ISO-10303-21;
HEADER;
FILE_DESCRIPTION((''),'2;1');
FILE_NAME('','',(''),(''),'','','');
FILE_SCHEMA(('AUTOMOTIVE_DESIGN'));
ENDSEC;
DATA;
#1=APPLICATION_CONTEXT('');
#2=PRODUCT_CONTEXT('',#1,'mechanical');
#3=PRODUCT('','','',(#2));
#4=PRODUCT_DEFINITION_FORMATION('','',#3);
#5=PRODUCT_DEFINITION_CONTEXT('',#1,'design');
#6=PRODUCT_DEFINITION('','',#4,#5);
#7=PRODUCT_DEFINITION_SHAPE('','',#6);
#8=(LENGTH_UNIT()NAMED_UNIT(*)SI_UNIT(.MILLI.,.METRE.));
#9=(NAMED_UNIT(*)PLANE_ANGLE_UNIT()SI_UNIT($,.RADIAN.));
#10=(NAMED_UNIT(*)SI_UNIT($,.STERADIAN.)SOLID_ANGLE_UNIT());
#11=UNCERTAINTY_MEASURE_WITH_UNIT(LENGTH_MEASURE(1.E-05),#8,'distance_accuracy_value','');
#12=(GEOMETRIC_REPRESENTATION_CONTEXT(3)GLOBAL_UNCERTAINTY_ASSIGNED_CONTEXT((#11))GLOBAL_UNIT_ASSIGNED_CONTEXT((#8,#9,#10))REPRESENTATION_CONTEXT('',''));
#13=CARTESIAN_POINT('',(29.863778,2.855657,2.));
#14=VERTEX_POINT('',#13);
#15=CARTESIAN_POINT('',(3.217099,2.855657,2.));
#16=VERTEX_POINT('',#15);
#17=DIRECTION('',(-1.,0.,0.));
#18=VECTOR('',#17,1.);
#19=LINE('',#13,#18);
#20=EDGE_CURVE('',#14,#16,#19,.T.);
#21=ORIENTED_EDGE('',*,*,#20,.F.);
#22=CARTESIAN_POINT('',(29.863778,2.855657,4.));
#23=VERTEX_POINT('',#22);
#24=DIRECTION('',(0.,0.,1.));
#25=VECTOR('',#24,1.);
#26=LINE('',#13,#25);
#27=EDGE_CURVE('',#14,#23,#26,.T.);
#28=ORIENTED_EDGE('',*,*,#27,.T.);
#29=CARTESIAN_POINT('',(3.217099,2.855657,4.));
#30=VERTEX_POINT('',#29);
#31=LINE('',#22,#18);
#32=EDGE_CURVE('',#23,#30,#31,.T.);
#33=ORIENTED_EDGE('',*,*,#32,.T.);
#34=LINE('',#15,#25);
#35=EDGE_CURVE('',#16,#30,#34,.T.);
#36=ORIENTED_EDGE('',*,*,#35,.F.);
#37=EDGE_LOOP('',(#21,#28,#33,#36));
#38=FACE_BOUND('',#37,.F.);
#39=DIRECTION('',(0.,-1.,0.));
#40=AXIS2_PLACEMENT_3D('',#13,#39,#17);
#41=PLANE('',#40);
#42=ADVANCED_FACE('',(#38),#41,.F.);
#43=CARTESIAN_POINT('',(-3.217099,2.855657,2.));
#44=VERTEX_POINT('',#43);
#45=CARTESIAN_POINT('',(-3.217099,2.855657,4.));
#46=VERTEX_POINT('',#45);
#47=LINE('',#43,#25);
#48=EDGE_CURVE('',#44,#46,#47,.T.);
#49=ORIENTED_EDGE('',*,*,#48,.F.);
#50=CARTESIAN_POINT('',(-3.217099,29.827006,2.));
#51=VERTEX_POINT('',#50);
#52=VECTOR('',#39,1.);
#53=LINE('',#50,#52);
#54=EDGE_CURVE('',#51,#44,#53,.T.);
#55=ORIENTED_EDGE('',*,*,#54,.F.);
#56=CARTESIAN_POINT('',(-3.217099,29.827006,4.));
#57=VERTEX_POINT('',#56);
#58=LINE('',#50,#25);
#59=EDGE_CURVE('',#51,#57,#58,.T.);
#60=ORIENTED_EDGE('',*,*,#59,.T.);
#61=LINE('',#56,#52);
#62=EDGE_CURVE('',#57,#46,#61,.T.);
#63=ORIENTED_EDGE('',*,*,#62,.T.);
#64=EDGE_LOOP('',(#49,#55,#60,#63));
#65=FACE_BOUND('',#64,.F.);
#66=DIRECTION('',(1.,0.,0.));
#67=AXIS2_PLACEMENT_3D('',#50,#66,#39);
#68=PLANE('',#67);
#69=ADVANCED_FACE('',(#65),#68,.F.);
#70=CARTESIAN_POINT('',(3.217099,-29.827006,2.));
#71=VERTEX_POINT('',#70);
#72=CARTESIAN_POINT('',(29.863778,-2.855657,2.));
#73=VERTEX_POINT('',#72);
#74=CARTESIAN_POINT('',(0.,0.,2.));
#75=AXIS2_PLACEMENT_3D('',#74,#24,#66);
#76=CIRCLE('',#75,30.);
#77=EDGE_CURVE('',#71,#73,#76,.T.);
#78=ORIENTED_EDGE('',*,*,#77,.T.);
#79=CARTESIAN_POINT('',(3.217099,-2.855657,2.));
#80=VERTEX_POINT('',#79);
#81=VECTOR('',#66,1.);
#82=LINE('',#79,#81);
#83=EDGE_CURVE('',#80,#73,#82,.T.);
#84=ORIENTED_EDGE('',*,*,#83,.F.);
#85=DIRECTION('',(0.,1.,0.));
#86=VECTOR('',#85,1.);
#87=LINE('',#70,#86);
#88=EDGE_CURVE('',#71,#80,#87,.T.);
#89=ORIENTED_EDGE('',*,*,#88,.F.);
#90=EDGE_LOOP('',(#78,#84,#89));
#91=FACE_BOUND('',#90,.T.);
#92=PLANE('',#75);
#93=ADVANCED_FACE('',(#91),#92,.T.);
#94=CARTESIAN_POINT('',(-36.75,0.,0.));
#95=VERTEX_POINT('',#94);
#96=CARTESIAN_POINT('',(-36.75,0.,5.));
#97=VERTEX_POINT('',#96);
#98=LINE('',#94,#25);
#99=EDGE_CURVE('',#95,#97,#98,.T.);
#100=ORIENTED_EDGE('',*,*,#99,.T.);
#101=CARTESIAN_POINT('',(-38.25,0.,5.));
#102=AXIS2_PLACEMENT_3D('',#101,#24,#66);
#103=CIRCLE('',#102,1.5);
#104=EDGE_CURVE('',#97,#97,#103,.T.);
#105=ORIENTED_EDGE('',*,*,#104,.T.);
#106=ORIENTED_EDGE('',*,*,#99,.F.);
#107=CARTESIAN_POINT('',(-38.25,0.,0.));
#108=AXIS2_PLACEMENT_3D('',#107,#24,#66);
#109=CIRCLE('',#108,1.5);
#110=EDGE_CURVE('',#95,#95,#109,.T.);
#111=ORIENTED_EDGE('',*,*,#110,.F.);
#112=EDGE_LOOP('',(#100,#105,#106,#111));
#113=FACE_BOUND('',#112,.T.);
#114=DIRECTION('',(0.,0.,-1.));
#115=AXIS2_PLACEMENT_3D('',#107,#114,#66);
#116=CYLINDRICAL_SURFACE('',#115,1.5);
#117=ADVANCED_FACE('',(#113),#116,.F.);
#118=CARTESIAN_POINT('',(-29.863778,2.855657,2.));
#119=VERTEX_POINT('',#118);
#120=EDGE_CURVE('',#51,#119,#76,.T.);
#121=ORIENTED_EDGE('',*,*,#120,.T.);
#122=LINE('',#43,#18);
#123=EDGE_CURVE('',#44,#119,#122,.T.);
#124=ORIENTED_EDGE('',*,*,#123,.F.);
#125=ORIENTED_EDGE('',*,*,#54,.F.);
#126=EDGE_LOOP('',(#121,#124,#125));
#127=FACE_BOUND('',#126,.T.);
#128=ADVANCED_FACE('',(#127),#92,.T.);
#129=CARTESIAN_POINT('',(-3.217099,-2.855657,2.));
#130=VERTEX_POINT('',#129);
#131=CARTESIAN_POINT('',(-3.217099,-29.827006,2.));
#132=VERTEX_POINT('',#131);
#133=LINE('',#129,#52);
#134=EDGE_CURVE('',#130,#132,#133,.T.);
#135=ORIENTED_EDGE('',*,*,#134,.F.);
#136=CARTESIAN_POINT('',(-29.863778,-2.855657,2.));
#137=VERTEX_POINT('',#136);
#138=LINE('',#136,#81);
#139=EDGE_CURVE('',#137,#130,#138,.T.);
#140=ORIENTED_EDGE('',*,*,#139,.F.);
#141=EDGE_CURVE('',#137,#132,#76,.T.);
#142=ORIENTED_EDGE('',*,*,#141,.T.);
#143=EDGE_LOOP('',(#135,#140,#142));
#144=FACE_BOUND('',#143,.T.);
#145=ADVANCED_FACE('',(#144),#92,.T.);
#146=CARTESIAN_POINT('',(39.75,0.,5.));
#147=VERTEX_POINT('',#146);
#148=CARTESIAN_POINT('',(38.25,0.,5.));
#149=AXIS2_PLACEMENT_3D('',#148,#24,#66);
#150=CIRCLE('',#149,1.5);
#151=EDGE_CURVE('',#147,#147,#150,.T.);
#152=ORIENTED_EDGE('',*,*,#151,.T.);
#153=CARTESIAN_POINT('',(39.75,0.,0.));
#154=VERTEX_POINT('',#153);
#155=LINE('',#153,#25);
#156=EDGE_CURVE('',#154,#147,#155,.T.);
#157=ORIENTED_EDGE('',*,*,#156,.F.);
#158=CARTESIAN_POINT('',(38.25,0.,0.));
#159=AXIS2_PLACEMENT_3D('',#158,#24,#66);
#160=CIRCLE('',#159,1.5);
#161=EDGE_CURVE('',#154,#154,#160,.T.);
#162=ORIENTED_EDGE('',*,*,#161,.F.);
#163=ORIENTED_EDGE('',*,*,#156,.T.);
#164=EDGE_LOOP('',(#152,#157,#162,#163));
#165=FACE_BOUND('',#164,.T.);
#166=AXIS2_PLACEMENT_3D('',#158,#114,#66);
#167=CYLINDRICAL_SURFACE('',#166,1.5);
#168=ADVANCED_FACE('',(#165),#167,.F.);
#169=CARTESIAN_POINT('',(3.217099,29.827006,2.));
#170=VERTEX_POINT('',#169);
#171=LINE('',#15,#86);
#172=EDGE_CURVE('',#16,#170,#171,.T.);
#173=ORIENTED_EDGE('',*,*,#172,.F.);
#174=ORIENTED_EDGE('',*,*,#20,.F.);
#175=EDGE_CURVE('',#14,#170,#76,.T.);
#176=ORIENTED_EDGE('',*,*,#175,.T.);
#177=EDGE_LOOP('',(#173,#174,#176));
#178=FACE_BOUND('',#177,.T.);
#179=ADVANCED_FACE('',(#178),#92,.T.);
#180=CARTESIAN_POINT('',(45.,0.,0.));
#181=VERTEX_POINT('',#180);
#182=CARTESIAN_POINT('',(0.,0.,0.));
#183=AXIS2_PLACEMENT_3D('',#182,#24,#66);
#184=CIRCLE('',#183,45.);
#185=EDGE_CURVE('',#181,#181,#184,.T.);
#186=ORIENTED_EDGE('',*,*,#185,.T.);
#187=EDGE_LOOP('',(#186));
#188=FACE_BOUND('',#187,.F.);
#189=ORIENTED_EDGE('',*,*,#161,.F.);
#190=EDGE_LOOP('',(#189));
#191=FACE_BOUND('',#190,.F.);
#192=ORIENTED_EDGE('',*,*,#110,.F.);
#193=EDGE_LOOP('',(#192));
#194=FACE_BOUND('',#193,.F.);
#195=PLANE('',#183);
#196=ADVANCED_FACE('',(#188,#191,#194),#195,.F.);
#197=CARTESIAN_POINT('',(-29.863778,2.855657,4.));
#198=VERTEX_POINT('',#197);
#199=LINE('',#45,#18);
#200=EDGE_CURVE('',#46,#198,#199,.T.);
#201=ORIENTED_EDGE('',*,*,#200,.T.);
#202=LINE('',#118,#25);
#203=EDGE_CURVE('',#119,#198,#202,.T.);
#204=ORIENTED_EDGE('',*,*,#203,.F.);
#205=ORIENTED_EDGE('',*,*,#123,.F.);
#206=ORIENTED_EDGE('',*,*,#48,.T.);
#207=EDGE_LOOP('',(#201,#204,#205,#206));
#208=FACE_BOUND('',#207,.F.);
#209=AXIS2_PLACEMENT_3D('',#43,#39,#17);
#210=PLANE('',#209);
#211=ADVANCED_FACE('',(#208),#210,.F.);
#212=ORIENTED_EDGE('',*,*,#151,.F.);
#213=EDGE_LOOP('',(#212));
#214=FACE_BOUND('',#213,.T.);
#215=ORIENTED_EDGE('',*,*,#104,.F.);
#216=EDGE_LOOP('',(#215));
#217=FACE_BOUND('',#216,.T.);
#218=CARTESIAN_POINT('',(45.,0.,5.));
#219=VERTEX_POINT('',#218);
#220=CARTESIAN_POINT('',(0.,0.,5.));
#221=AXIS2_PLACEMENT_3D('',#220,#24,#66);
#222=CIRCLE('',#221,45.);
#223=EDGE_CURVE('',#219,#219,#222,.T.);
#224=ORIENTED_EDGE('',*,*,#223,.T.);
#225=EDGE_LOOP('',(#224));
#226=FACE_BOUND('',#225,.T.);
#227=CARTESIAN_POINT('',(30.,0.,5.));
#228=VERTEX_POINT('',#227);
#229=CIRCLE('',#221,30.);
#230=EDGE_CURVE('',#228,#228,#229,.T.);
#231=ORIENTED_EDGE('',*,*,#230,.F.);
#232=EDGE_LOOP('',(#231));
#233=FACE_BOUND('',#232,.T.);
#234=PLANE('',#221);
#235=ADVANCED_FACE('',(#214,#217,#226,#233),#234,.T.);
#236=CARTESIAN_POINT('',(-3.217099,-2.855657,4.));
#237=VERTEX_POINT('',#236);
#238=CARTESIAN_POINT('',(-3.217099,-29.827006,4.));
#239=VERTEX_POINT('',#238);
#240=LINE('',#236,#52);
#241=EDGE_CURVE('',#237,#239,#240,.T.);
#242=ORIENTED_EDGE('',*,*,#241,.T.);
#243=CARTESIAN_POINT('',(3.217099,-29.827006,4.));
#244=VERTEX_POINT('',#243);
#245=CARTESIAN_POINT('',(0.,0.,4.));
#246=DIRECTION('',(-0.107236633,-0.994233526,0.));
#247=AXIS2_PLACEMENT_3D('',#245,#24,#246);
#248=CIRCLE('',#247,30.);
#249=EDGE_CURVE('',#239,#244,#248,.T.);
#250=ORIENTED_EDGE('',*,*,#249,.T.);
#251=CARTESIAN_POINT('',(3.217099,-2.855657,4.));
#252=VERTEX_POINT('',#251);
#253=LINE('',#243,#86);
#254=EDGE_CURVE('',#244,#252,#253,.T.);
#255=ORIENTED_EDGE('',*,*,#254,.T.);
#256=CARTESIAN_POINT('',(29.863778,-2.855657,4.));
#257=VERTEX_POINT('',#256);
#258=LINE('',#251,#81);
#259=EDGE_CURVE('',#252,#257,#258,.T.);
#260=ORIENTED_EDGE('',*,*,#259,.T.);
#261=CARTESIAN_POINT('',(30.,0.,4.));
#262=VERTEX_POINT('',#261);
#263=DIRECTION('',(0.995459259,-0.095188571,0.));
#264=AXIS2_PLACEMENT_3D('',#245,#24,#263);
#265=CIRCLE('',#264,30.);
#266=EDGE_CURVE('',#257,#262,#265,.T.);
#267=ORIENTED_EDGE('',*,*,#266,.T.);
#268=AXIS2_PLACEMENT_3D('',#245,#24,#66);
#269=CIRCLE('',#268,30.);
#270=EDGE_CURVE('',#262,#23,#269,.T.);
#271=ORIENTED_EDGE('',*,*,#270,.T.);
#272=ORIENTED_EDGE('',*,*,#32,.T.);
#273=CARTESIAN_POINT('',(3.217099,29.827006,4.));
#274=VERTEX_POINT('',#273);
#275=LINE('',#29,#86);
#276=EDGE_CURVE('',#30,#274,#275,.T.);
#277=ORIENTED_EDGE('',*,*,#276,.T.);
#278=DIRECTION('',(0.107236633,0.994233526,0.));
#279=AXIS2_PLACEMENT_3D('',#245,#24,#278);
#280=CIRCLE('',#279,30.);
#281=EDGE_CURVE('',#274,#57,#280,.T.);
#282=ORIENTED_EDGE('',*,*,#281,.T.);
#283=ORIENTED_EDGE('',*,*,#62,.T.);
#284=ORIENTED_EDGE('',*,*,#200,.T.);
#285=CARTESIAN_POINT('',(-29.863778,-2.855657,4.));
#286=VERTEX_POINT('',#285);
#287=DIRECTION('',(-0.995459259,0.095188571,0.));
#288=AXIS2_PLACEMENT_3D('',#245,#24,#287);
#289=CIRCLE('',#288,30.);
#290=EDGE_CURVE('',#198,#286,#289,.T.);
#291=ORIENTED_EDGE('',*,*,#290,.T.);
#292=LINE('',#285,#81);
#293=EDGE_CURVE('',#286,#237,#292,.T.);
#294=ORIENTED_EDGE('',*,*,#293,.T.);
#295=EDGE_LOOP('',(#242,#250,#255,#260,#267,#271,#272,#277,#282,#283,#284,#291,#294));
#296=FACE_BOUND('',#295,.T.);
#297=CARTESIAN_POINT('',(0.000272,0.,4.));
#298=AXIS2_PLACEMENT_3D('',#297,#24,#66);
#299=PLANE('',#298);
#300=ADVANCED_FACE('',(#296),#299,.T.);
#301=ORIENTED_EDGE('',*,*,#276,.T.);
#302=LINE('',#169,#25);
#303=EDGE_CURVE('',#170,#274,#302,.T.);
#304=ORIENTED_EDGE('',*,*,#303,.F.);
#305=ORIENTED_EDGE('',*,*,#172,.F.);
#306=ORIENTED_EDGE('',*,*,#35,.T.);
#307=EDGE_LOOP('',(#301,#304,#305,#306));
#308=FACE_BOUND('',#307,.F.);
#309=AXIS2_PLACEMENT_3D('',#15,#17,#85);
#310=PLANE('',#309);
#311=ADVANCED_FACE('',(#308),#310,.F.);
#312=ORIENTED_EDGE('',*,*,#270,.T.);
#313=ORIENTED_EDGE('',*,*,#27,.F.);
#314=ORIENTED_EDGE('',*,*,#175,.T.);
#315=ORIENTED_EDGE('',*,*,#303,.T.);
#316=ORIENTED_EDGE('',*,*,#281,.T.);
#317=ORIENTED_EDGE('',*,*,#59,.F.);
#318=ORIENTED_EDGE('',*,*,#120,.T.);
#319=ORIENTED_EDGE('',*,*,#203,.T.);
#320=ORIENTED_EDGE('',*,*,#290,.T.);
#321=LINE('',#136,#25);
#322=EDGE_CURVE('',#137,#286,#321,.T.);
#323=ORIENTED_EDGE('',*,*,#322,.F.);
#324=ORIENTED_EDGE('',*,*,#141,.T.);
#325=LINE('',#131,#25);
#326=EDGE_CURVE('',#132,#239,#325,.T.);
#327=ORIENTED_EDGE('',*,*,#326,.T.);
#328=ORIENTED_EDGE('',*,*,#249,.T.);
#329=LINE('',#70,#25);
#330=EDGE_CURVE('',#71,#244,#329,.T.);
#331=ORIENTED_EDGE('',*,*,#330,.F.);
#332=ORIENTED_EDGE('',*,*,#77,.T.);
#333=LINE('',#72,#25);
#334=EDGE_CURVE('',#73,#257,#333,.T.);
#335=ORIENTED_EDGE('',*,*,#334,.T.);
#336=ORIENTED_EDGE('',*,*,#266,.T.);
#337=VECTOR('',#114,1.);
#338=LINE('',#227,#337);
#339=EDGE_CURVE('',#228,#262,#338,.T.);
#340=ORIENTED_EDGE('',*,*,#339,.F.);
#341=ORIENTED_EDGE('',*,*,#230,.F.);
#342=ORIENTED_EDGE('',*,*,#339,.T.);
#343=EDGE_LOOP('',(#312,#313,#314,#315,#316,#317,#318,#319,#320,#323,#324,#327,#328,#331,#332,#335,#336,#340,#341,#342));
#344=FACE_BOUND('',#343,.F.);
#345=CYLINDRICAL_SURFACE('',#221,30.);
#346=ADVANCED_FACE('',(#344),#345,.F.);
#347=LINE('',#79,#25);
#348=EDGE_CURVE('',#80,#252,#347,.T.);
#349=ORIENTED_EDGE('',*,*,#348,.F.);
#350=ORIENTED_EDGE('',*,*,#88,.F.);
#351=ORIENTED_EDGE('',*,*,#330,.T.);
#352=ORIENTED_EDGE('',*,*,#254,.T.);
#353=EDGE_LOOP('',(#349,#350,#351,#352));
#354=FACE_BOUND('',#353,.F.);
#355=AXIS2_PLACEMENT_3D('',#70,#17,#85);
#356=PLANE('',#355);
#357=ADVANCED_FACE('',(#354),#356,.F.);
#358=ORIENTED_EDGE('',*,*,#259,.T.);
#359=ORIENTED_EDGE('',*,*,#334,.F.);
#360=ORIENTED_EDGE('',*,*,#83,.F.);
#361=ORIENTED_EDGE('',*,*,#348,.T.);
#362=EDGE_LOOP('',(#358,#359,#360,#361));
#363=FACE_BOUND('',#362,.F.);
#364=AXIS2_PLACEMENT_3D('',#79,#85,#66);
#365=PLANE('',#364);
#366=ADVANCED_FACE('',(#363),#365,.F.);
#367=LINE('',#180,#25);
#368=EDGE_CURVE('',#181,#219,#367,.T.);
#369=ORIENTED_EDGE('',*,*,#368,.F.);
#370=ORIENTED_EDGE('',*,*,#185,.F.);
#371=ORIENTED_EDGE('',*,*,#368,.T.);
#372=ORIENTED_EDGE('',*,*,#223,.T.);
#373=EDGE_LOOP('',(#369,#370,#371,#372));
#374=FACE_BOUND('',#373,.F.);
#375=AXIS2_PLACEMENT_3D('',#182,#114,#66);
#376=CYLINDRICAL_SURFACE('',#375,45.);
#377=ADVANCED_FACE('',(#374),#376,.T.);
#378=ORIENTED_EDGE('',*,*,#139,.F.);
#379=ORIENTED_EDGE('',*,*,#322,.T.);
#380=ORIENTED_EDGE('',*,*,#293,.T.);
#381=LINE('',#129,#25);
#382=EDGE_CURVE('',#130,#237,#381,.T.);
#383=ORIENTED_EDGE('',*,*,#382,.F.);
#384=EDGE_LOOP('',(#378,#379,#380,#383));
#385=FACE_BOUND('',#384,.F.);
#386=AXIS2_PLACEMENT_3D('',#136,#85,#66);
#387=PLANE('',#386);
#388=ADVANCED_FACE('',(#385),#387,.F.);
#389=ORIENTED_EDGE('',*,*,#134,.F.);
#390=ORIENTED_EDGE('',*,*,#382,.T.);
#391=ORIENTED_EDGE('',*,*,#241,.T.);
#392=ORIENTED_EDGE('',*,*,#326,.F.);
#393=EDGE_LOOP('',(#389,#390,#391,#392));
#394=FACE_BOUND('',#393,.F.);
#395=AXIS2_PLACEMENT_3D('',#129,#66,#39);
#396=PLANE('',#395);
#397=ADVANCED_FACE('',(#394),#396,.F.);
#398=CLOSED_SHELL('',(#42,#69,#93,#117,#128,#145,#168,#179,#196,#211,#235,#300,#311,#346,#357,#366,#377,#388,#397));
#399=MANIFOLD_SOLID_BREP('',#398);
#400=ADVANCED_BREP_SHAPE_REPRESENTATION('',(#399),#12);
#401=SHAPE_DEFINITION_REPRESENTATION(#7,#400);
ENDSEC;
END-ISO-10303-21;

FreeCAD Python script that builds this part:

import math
import FreeCAD as App
import Part
import Sketcher
from FreeCAD import Vector
Q = App.Units.Quantity

doc = App.newDocument("Part")
params = doc.addObject("Spreadsheet::Sheet", "Params")
for row, (alias, value) in enumerate([
    ("sketch1_diameter", "90 mm"),
    ("sketch1_diameter2", "3 mm"),
    ("pad1_length", "5 mm"),
    ("sketch2_diameter", "60 mm"),
    ("pocket1_length", "3 mm"),
    ("sketch3_radius", "30 mm"),
    ("pad2_length", "2 mm"),
], start=1):
    params.set(f"A{row}", alias)
    params.set(f"B{row}", "=" + value)
    params.setAlias(f"B{row}", alias)

body = doc.addObject("PartDesign::Body", "Body")

# Sketch on XY plane
sketch1 = body.newObject("Sketcher::SketchObject", "Sketch")
sketch1.AttachmentSupport = (doc.getObject("XY_Plane"), [""])
sketch1.MapMode = "FlatFace"
sketch1.addGeometry([
    Part.Circle(Vector(0, 0, 0), Vector(0, 0, 1), 45),
    Part.Circle(Vector(-38.2, 0, 0), Vector(0, 0, 1), 1.5),
    Part.Circle(Vector(38.2, 0, 0), Vector(0, 0, 1), 1.5),
], False)
sketch1.addConstraint([
    Sketcher.Constraint("Coincident", 0, 3, -1, 1),
    Sketcher.Constraint("Equal", 1, 2),
    Sketcher.Constraint("Symmetric", 1, 3, 2, 3, -1, 1),
    Sketcher.Constraint("PointOnObject", 1, 3, -1),
    Sketcher.Constraint("Diameter", 0, Q("90 mm")),
    Sketcher.Constraint("Diameter", 1, Q("3 mm")),
    Sketcher.Constraint("DistanceX", 1, 3, 2, 3, Q("76.5 mm")),
])
sketch1.setExpression("Constraints[4]", "Params.sketch1_diameter")
sketch1.setExpression("Constraints[5]", "Params.sketch1_diameter2")
pad1 = body.newObject("PartDesign::Pad", "Pad")
pad1.Profile = sketch1
pad1.setExpression("Length", "Params.pad1_length")

# Sketch on XY plane
sketch2 = body.newObject("Sketcher::SketchObject", "Sketch001")
sketch2.AttachmentSupport = (doc.getObject("XY_Plane"), [""])
sketch2.MapMode = "FlatFace"
sketch2.AttachmentOffset = App.Placement(Vector(0, 0, 5), App.Rotation())
sketch2.addGeometry(Part.Circle(Vector(0, 0, 0), Vector(0, 0, 1), 30), False)
sketch2.addConstraint([
    Sketcher.Constraint("Coincident", 0, 3, -1, 1),
    Sketcher.Constraint("Diameter", 0, Q("60 mm")),
])
sketch2.setExpression("Constraints[1]", "Params.sketch2_diameter")
pocket1 = body.newObject("PartDesign::Pocket", "Pocket")
pocket1.Profile = sketch2
pocket1.setExpression("Length", "Params.pocket1_length")

# Sketch on XY plane
sketch3 = body.newObject("Sketcher::SketchObject", "Sketch002")
sketch3.AttachmentSupport = (doc.getObject("XY_Plane"), [""])
sketch3.MapMode = "FlatFace"
sketch3.AttachmentOffset = App.Placement(Vector(0, 0, 2), App.Rotation())
sketch3.addGeometry([
    Part.LineSegment(Vector(-3.2, 29.8, 0), Vector(-3.2, 2.9, 0)),  # 0
    Part.LineSegment(Vector(-3.2, 2.9, 0), Vector(-29.9, 2.9, 0)),  # 1
    Part.ArcOfCircle(Part.Circle(Vector(0, 0, 0), Vector(0, 0, 1), 30), math.radians(174.54), math.radians(185.46)),  # 2
    Part.LineSegment(Vector(-29.9, -2.9, 0), Vector(-3.2, -2.9, 0)),  # 3
    Part.LineSegment(Vector(-3.2, -2.9, 0), Vector(-3.2, -29.8, 0)),  # 4
    Part.ArcOfCircle(Part.Circle(Vector(0, 0, 0), Vector(0, 0, 1), 30), math.radians(-96.16), math.radians(-83.84)),  # 5
    Part.LineSegment(Vector(3.2, -29.8, 0), Vector(3.2, -2.9, 0)),  # 6
    Part.LineSegment(Vector(3.2, -2.9, 0), Vector(29.9, -2.9, 0)),  # 7
    Part.ArcOfCircle(Part.Circle(Vector(0, 0, 0), Vector(0, 0, 1), 30), math.radians(-5.46), math.radians(0)),  # 8
    Part.ArcOfCircle(Part.Circle(Vector(0, 0, 0), Vector(0, 0, 1), 30), math.radians(0), math.radians(5.46)),  # 9
    Part.LineSegment(Vector(29.9, 2.9, 0), Vector(3.2, 2.9, 0)),  # 10
    Part.LineSegment(Vector(3.2, 2.9, 0), Vector(3.2, 29.8, 0)),  # 11
    Part.ArcOfCircle(Part.Circle(Vector(0, 0, 0), Vector(0, 0, 1), 30), math.radians(83.84), math.radians(96.16)),  # 12
], False)
sketch3.addConstraint([
    Sketcher.Constraint("Coincident", 0, 2, 1, 1),
    Sketcher.Constraint("Coincident", 1, 2, 2, 1),
    Sketcher.Constraint("Coincident", 2, 2, 3, 1),
    Sketcher.Constraint("Coincident", 3, 2, 4, 1),
    Sketcher.Constraint("Coincident", 4, 2, 5, 1),
    Sketcher.Constraint("Coincident", 5, 2, 6, 1),
    Sketcher.Constraint("Coincident", 6, 2, 7, 1),
    Sketcher.Constraint("Coincident", 7, 2, 8, 1),
    Sketcher.Constraint("Tangent", 8, 2, 9, 1),
    Sketcher.Constraint("Coincident", 9, 2, 10, 1),
    Sketcher.Constraint("Coincident", 10, 2, 11, 1),
    Sketcher.Constraint("Coincident", 11, 2, 12, 1),
    Sketcher.Constraint("Coincident", 12, 2, 0, 1),
    Sketcher.Constraint("Vertical", 0),
    Sketcher.Constraint("Horizontal", 1),
    Sketcher.Constraint("Horizontal", 3),
    Sketcher.Constraint("Vertical", 4),
    Sketcher.Constraint("Vertical", 6),
    Sketcher.Constraint("Horizontal", 7),
    Sketcher.Constraint("Horizontal", 10),
    Sketcher.Constraint("Vertical", 11),
    Sketcher.Constraint("Coincident", 2, 3, -1, 1),
    Sketcher.Constraint("Coincident", 5, 3, -1, 1),
    Sketcher.Constraint("Coincident", 8, 3, -1, 1),
    Sketcher.Constraint("Coincident", 12, 3, -1, 1),
    Sketcher.Constraint("Equal", 2, 5),
    Sketcher.Constraint("Equal", 5, 8),
    Sketcher.Constraint("Equal", 8, 9),
    Sketcher.Constraint("Equal", 9, 12),
    Sketcher.Constraint("Symmetric", 0, 2, 6, 2, -1, 1),
    Sketcher.Constraint("Symmetric", 3, 2, 10, 2, -1, 1),
    Sketcher.Constraint("Symmetric", 3, 2, 6, 2, -2),
    Sketcher.Constraint("PointOnObject", 8, 2, -1),
    Sketcher.Constraint("Radius", 2, Q("30 mm")),
    Sketcher.Constraint("DistanceX", 1, 2, 1, 1, Q("26.646679 mm")),
    Sketcher.Constraint("DistanceY", 0, 2, 0, 1, Q("26.971349 mm")),
])
sketch3.setExpression("Constraints[33]", "Params.sketch3_radius")
pad2 = body.newObject("PartDesign::Pad", "Pad001")
pad2.Profile = sketch3
pad2.setExpression("Length", "Params.pad2_length")

doc.recompute()
